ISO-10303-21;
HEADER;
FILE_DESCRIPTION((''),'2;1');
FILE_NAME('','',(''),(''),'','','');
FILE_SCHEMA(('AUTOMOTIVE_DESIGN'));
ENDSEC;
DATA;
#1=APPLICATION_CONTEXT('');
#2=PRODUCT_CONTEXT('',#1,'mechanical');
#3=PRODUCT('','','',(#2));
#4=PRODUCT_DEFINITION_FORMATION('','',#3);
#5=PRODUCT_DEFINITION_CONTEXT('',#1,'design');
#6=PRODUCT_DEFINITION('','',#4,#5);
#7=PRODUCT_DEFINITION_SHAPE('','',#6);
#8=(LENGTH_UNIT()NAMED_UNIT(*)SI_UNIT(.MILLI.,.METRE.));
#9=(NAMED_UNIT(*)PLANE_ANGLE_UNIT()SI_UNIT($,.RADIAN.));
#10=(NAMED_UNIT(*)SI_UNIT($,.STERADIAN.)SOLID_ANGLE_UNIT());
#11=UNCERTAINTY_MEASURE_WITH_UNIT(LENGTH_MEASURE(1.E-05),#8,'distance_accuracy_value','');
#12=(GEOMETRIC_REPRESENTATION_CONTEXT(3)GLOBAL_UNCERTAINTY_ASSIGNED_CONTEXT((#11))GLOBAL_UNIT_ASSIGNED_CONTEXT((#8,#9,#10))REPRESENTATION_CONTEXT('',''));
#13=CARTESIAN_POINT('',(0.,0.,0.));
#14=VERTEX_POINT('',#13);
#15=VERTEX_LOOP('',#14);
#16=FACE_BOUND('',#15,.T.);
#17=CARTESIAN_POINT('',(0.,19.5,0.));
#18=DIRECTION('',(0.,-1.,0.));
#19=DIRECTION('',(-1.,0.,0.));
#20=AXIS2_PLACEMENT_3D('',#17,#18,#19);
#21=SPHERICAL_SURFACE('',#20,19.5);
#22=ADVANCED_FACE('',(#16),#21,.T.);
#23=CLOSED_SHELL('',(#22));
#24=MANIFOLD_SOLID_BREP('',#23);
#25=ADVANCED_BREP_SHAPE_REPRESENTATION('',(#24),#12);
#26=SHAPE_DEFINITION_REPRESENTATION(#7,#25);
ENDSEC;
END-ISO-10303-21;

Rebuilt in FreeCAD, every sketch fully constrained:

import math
import FreeCAD as App
import Part
import Sketcher

V = App.Vector
Q = App.Units.Quantity

doc = App.newDocument("Part")
body = doc.addObject("PartDesign::Body", "Body")

sketch1 = doc.addObject("Sketcher::SketchObject", "Sketch")
body.addObject(sketch1)
sketch1.AttachmentSupport = (doc.XY_Plane, [""])
sketch1.MapMode = "FlatFace"
sketch1.addGeometry([
    Part.LineSegment(V(0, 39, 0), V(0, 0, 0)),
    Part.ArcOfCircle(Part.Circle(V(0, 19.5, 0), V(0, 0, 1), 19.5), math.radians(-90), math.radians(90)),
], False)
sketch1.addConstraint([
    Sketcher.Constraint("Coincident", 0, 1, 1, 2),
    Sketcher.Constraint("Coincident", 1, 1, 0, 2),
    Sketcher.Constraint("Vertical", 0),
    Sketcher.Constraint("Coincident", 1, 1, -1, 1),
    Sketcher.Constraint("PointOnObject", 1, 3, -2),
    Sketcher.Constraint("Radius", 1, Q("19.5 mm")),
])
revolution = doc.addObject("PartDesign::Revolution", "Revolution")
body.addObject(revolution)
revolution.Profile = sketch1
revolution.ReferenceAxis = (sketch1, ["V_Axis"])
revolution.Angle = 360

doc.recompute()
